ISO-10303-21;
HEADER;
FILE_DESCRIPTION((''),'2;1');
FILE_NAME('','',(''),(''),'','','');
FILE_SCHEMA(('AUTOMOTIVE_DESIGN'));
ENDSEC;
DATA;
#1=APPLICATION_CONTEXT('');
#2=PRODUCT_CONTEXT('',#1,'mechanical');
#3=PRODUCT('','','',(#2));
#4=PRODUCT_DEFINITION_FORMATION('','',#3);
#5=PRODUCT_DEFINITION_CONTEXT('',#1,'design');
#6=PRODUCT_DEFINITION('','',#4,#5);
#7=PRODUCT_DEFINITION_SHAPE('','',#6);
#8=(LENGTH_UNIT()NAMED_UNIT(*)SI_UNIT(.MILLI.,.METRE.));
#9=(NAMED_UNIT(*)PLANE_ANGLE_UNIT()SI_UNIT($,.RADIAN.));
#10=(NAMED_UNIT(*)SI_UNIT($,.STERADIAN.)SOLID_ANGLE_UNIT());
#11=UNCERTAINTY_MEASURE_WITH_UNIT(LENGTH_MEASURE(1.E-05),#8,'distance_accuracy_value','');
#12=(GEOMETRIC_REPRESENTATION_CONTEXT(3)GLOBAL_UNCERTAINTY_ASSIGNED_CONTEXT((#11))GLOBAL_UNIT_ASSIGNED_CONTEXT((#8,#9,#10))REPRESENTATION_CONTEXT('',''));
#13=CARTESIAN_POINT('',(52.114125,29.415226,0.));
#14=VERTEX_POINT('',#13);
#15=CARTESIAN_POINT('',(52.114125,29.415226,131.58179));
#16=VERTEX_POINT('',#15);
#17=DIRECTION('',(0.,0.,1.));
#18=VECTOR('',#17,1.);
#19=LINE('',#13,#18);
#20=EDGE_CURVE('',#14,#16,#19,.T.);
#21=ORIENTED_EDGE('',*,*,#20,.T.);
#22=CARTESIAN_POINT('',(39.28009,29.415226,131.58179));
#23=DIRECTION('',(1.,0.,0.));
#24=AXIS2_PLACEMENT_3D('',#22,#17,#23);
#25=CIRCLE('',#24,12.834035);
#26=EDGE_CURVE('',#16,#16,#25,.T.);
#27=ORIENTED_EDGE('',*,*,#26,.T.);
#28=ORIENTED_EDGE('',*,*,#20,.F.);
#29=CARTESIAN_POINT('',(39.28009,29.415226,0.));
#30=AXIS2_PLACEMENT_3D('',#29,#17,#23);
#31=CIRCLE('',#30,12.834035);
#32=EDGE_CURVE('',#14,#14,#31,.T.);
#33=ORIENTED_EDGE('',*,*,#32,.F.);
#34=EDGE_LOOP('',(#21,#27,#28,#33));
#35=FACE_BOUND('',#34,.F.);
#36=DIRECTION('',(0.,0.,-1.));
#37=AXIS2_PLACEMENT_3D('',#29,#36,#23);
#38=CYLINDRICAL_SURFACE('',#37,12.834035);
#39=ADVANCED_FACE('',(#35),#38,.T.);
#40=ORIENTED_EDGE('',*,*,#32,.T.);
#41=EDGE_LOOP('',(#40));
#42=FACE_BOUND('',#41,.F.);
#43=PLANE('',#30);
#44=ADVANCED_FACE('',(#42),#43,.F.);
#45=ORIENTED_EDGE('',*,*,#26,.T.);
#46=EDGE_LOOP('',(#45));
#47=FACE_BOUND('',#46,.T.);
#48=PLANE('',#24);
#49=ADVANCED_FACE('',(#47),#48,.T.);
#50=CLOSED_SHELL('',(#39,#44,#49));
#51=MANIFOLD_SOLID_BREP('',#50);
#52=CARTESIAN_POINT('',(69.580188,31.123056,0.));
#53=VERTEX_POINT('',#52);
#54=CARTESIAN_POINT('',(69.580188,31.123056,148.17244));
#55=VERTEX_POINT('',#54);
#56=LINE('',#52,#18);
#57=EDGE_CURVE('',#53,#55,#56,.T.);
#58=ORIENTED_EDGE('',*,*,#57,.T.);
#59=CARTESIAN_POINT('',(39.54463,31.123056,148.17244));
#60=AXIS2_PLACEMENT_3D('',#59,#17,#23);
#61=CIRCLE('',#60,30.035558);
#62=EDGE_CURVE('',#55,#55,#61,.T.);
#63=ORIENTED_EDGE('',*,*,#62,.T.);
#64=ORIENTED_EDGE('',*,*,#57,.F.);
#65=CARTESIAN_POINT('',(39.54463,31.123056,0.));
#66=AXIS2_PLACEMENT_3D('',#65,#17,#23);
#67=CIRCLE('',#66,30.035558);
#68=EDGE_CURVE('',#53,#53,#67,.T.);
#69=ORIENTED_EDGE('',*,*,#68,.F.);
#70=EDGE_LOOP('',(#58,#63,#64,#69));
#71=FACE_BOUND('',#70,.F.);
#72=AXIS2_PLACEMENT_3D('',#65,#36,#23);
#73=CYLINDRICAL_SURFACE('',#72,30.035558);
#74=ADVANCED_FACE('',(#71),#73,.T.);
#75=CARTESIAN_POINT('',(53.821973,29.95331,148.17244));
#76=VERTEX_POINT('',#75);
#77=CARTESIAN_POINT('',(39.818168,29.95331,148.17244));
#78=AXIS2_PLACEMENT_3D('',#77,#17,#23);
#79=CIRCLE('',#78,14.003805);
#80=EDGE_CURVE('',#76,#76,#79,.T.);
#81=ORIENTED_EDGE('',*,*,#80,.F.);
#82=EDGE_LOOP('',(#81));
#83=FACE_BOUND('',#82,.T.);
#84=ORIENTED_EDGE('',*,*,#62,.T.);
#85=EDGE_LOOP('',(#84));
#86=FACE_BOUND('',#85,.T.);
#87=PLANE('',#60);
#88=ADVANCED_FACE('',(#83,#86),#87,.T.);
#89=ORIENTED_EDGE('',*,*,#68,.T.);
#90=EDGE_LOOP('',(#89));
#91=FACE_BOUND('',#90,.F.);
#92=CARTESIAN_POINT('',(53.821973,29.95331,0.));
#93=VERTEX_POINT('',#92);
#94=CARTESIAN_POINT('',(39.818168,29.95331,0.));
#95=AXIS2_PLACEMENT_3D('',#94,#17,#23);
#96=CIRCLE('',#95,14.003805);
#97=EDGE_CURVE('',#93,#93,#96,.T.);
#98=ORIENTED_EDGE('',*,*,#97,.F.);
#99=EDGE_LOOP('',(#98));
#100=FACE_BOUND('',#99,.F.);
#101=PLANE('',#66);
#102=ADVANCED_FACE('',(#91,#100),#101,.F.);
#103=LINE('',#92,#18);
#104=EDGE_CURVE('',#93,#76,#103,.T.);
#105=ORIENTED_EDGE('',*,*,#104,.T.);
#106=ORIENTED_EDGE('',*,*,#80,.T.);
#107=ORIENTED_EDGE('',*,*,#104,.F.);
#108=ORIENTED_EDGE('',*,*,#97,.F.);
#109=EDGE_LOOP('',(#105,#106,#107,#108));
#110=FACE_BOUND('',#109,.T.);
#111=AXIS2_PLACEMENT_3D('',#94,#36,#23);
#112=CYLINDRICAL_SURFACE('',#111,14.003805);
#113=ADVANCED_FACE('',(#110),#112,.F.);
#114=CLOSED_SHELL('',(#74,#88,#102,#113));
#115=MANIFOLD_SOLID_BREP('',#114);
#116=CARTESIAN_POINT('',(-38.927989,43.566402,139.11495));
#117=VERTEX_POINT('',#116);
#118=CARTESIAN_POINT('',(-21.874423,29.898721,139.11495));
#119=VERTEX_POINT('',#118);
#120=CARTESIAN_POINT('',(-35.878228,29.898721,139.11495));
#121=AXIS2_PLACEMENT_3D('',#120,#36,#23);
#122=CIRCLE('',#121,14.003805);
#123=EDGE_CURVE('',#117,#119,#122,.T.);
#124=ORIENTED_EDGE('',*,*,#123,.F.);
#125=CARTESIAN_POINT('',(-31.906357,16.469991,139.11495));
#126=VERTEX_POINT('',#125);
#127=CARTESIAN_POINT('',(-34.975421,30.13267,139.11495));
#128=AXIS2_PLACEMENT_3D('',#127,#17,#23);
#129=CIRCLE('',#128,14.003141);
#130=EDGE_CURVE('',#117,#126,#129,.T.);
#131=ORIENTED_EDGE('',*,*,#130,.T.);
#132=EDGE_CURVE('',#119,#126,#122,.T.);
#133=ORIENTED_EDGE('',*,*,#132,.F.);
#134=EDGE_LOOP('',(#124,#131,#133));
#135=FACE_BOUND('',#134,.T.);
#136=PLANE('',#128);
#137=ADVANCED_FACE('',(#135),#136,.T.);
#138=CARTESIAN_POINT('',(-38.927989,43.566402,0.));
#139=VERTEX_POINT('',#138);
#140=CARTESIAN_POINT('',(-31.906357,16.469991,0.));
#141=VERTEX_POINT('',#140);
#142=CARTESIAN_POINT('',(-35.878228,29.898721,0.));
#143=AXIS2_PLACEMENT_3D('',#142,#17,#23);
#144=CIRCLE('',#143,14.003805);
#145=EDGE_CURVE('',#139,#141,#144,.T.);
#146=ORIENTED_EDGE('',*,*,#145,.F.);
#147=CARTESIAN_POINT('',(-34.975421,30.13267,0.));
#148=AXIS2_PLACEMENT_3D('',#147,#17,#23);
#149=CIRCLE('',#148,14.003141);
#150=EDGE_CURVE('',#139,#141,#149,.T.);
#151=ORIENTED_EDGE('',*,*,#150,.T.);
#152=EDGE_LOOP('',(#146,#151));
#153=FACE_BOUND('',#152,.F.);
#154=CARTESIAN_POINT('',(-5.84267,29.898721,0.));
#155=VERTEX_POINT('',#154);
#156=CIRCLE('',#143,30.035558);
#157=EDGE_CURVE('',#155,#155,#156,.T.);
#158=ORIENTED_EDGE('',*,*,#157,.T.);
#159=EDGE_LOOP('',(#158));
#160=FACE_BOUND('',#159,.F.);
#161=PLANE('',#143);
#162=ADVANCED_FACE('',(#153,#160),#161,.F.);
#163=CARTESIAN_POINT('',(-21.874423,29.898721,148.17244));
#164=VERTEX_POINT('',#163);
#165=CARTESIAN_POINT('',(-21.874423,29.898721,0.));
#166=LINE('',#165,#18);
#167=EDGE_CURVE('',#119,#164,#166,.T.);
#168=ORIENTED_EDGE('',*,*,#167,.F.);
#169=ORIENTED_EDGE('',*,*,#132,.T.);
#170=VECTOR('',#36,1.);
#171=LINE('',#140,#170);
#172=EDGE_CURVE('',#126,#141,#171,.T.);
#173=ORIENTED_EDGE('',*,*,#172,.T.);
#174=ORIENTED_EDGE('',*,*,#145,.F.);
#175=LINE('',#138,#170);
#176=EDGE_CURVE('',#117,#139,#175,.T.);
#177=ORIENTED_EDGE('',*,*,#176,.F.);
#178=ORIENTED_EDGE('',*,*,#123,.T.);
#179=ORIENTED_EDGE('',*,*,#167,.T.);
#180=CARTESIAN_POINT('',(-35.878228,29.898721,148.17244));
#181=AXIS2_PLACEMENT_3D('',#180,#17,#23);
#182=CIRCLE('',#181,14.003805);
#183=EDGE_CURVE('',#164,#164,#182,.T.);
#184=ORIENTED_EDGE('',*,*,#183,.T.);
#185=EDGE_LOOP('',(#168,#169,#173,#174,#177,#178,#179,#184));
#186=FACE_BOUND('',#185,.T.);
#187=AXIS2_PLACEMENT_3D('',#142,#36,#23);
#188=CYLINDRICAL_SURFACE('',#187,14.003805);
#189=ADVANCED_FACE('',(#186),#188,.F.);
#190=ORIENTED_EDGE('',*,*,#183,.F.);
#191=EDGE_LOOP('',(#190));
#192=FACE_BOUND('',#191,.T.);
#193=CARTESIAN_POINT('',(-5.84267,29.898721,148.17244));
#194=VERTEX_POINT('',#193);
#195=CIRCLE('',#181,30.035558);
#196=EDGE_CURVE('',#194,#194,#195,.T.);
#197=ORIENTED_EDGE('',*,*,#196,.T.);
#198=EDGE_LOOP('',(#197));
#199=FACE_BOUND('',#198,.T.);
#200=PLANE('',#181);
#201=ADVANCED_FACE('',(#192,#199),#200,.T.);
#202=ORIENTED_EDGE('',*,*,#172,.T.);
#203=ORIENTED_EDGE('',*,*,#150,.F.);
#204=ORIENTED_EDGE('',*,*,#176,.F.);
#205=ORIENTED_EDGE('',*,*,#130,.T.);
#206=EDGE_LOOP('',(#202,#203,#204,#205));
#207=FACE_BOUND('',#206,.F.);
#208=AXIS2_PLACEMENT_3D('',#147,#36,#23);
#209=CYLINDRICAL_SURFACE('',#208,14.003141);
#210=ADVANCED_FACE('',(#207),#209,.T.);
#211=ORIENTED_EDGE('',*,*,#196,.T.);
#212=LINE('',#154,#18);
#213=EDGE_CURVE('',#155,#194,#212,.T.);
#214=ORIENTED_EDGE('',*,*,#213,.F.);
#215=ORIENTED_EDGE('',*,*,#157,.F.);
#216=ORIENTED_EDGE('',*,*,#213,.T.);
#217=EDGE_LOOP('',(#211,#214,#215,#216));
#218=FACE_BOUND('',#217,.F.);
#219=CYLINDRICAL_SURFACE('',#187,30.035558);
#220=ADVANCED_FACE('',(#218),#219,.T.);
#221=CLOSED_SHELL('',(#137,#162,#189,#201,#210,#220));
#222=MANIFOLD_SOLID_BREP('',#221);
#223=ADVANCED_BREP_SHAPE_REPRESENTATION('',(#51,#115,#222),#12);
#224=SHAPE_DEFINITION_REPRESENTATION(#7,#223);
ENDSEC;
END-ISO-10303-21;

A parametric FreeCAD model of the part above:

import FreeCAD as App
import Part
import Sketcher
from FreeCAD import Vector

doc = App.newDocument("Part")
body = doc.addObject("PartDesign::Body", "Body")
body.AllowCompound = True

sketch1 = body.newObject("Sketcher::SketchObject", "Sketch")
sketch1.AttachmentSupport = (doc.getObject("XY_Plane"), [""])
sketch1.MapMode = "FlatFace"
sketch1.addGeometry(Part.Circle(Vector(-35.878228, 29.898721, 0), Vector(0, 0, 1), 30.035558), False)
sketch1.addGeometry(Part.Circle(Vector(-35.878228, 29.898721, 0), Vector(0, 0, 1), 14.003805), False)
sketch1.addGeometry(Part.Circle(Vector(39.54463, 31.123056, 0), Vector(0, 0, 1), 30.035558), False)
sketch1.addGeometry(Part.Circle(Vector(39.818168, 29.95331, 0), Vector(0, 0, 1), 14.003805), False)
sketch1.addConstraint(Sketcher.Constraint("Coincident", 1, 3, 0, 3))
sketch1.addConstraint(Sketcher.Constraint("Equal", 0, 2))
sketch1.addConstraint(Sketcher.Constraint("Equal", 1, 3))
sketch1.addConstraint(Sketcher.Constraint("Diameter", 1, 28.00761))
sketch1.addConstraint(Sketcher.Constraint("Diameter", 0, 60.071116))
sketch1.addConstraint(Sketcher.Constraint("DistanceY", -1, 1, 0, 3, 29.898721))
sketch1.addConstraint(Sketcher.Constraint("DistanceX", -1, 1, 2, 3, 39.54463))
sketch1.addConstraint(Sketcher.Constraint("DistanceY", -1, 1, 3, 3, 29.95331))
sketch1.addConstraint(Sketcher.Constraint("DistanceX", 2, 3, 3, 3, 0.273538))
sketch1.addConstraint(Sketcher.Constraint("DistanceX", 0, 3, -1, 1, 35.878228))
sketch1.addConstraint(Sketcher.Constraint("DistanceY", -1, 1, 2, 3, 31.123056))
pad1 = body.newObject("PartDesign::Pad", "Pad")
pad1.Profile = sketch1
pad1.Length = 148.17244

sketch2 = body.newObject("Sketcher::SketchObject", "Sketch001")
sketch2.AttachmentSupport = (doc.getObject("XY_Plane"), [""])
sketch2.MapMode = "FlatFace"
sketch2.addGeometry(Part.Circle(Vector(-34.975421, 30.13267, 0), Vector(0, 0, 1), 14.003141), False)
sketch2.addConstraint(Sketcher.Constraint("Diameter", 0, 28.006282))
sketch2.addConstraint(Sketcher.Constraint("DistanceX", 0, 3, -1, 1, 34.975421))
sketch2.addConstraint(Sketcher.Constraint("DistanceY", -1, 1, 0, 3, 30.13267))
pad2 = body.newObject("PartDesign::Pad", "Pad001")
pad2.Profile = sketch2
pad2.Length = 139.11495
body2 = doc.addObject("PartDesign::Body", "Body001")

sketch3 = body2.newObject("Sketcher::SketchObject", "Sketch002")
sketch3.AttachmentSupport = (doc.getObject("XY_Plane001"), [""])
sketch3.MapMode = "FlatFace"
sketch3.addGeometry(Part.Circle(Vector(39.28009, 29.415226, 0), Vector(0, 0, 1), 12.834035), False)
sketch3.addConstraint(Sketcher.Constraint("Diameter", 0, 25.66807))
sketch3.addConstraint(Sketcher.Constraint("DistanceX", -1, 1, 0, 3, 39.28009))
sketch3.addConstraint(Sketcher.Constraint("DistanceY", -1, 1, 0, 3, 29.415226))
pad3 = body2.newObject("PartDesign::Pad", "Pad002")
pad3.Profile = sketch3
pad3.Length = 131.58179

doc.recompute()
